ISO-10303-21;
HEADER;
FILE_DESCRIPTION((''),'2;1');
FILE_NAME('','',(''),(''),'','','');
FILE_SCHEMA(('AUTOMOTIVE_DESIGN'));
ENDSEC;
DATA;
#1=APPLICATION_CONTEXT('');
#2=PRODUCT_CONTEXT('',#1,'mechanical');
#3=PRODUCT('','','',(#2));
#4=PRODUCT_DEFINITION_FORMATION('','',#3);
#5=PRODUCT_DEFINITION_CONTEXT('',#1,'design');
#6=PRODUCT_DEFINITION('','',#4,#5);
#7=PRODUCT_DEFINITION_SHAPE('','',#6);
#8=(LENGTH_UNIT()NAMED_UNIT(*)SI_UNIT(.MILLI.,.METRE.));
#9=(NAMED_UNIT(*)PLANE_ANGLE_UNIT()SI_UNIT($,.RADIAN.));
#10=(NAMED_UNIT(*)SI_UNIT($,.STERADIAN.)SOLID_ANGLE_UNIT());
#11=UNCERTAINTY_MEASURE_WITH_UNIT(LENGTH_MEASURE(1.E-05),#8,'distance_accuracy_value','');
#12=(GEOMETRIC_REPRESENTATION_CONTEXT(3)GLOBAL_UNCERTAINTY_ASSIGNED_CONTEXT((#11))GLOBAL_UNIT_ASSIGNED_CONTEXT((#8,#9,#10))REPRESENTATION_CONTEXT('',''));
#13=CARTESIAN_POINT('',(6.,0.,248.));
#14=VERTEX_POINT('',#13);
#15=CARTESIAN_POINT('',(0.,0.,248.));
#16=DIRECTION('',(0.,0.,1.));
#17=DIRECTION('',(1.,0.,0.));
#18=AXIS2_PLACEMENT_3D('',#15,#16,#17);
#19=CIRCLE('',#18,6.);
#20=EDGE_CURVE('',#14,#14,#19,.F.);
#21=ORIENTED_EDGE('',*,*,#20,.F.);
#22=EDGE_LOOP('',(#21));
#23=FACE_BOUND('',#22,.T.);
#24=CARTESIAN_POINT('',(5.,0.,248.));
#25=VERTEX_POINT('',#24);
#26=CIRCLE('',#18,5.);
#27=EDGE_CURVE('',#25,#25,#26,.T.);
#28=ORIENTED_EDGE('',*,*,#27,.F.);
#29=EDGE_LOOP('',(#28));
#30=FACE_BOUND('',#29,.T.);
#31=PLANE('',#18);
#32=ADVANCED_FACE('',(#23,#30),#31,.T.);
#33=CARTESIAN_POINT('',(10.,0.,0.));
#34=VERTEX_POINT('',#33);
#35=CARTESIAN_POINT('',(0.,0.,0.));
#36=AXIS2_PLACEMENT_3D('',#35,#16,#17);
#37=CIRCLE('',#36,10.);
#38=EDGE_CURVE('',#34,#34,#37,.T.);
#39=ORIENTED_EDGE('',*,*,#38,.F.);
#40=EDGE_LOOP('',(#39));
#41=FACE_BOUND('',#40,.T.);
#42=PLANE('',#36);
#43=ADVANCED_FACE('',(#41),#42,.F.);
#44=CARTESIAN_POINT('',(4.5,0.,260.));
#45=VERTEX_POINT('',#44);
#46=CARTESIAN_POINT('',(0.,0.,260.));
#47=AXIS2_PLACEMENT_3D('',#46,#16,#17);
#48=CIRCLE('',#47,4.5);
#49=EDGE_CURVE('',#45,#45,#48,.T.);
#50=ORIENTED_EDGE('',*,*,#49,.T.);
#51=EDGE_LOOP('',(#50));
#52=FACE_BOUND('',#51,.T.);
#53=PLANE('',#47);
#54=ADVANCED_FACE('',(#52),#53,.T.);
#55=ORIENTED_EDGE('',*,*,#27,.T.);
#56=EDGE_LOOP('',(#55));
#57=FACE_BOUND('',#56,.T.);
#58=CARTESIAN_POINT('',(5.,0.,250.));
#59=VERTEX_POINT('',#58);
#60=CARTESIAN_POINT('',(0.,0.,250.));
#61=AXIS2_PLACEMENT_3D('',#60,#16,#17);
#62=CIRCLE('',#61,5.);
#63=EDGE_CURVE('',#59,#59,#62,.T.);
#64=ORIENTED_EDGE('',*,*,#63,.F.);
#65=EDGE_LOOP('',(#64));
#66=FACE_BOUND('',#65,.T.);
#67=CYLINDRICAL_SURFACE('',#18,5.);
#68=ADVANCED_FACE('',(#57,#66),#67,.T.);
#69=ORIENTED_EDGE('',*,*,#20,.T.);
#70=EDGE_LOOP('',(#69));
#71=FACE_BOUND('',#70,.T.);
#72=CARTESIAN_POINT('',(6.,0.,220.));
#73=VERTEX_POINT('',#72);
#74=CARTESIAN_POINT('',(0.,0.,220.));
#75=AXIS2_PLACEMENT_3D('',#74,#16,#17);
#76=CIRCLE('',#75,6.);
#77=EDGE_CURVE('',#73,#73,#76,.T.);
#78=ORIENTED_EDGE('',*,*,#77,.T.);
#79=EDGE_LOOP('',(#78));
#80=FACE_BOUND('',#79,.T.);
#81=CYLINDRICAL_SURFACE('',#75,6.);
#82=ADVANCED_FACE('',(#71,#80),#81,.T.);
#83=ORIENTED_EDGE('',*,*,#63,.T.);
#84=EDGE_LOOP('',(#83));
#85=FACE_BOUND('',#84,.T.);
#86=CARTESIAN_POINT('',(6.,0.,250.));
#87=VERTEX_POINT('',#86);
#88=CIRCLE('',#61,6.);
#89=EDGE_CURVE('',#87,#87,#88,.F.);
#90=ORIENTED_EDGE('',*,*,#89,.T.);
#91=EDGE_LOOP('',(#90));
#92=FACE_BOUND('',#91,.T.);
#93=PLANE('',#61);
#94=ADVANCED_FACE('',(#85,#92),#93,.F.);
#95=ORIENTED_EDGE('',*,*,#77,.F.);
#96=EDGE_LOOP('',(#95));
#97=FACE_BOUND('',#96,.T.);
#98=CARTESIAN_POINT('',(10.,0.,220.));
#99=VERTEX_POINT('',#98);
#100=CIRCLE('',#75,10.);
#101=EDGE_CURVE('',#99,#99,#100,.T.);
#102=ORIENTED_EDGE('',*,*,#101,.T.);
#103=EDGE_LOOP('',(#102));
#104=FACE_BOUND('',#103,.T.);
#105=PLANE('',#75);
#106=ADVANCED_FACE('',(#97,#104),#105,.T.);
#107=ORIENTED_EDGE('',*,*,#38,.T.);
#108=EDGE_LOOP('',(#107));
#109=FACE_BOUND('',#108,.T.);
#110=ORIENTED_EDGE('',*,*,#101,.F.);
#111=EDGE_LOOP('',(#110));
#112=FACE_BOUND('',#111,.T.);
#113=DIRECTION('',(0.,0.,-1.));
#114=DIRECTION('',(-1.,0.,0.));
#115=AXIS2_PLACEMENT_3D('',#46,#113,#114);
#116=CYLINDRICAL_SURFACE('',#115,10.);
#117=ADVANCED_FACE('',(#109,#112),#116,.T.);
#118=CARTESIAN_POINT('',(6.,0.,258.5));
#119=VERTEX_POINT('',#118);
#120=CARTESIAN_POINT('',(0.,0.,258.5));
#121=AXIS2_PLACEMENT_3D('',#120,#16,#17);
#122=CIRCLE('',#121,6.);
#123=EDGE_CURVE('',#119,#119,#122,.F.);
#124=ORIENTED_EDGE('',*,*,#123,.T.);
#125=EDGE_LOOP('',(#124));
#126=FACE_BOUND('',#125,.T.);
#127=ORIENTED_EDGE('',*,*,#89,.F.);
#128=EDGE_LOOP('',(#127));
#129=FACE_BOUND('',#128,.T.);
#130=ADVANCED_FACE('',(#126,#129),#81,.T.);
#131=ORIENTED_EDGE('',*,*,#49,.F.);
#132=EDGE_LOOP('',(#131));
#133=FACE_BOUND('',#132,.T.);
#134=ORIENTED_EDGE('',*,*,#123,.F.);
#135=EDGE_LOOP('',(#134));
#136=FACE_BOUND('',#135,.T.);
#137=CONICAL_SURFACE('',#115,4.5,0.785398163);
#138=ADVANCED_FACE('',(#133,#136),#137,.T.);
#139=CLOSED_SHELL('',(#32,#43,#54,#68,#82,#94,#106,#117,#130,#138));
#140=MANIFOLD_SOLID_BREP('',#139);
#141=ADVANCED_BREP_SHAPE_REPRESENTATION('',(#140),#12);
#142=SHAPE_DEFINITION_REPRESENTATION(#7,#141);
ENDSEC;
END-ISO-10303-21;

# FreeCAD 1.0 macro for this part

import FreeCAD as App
import Part
import Sketcher

V = App.Vector
Q = App.Units.Quantity


def edges_at(feature, points):
    """Names of the edges that pass closest to the given points."""
    edges = feature.Shape.Edges
    near = lambda p: min(range(len(edges)), key=lambda i: edges[i].distToShape(Part.Vertex(*p))[0])
    return sorted({f"Edge{near(p) + 1}" for p in points})


def add_polygon(sketch, points):
    """Adds a closed chain of lines whose ends are joined by coincident constraints."""
    first, n = sketch.GeometryCount, len(points)
    for a, b in zip(points, points[1:] + points[:1]):
        sketch.addGeometry(Part.LineSegment(App.Vector(*a, 0), App.Vector(*b, 0)), False)
    for i in range(n):
        sketch.addConstraint(Sketcher.Constraint("Coincident", first + i, 2, first + (i + 1) % n, 1))

doc = App.newDocument("Part")
body = doc.addObject("PartDesign::Body", "Body")

# Sketch on XY plane
sketch1 = body.newObject("Sketcher::SketchObject", "Sketch")
sketch1.AttachmentSupport = (doc.getObject("XY_Plane"), [""])
sketch1.MapMode = "FlatFace"
sketch1.addGeometry(Part.Circle(V(0, 0, 0), V(0, 0, 1), 10), False)
sketch1.addConstraint([
    Sketcher.Constraint("Coincident", 0, 3, -1, 1),
    Sketcher.Constraint("Diameter", 0, Q("20 mm")),
])
pad1 = body.newObject("PartDesign::Pad", "Pad")
pad1.Profile = sketch1
pad1.Length = 260

# Sketch on XY plane
sketch2 = body.newObject("Sketcher::SketchObject", "Sketch001")
sketch2.AttachmentSupport = (doc.getObject("XY_Plane"), [""])
sketch2.MapMode = "FlatFace"
sketch2.AttachmentOffset = App.Placement(V(0, 0, 260), App.Rotation())
add_polygon(sketch2, [(-37, 37), (-37, -37), (37, -37), (37, 37)])  # lines 0-3
sketch2.addGeometry(Part.Circle(V(0, 0, 0), V(0, 0, 1), 6), False)  # 4
sketch2.addConstraint([
    Sketcher.Constraint("Vertical", 0),
    Sketcher.Constraint("Horizontal", 1),
    Sketcher.Constraint("Vertical", 2),
    Sketcher.Constraint("Horizontal", 3),
    Sketcher.Constraint("Coincident", 4, 3, -1, 1),
    Sketcher.Constraint("Symmetric", 0, 2, 2, 2, -1, 1),
    Sketcher.Constraint("Equal", 3, 0),
    Sketcher.Constraint("Diameter", 4, Q("12 mm")),
    Sketcher.Constraint("DistanceX", 1, 1, 1, 2, Q("74.306 mm")),
])
pocket1 = body.newObject("PartDesign::Pocket", "Pocket")
pocket1.Profile = sketch2
pocket1.Length = 40

# Sketch on XY plane
sketch3 = body.newObject("Sketcher::SketchObject", "Sketch002")
sketch3.AttachmentSupport = (doc.getObject("XY_Plane"), [""])
sketch3.MapMode = "FlatFace"
sketch3.AttachmentOffset = App.Placement(V(0, 0, 250), App.Rotation())
add_polygon(sketch3, [(-37, 37), (-37, -37), (37, -37), (37, 37)])  # lines 0-3
sketch3.addGeometry(Part.Circle(V(0, 0, 0), V(0, 0, 1), 5), False)  # 4
sketch3.addConstraint([
    Sketcher.Constraint("Vertical", 0),
    Sketcher.Constraint("Horizontal", 1),
    Sketcher.Constraint("Vertical", 2),
    Sketcher.Constraint("Horizontal", 3),
    Sketcher.Constraint("Coincident", 4, 3, -1, 1),
    Sketcher.Constraint("Symmetric", 0, 2, 2, 2, -1, 1),
    Sketcher.Constraint("Equal", 3, 0),
    Sketcher.Constraint("Diameter", 4, Q("10 mm")),
    Sketcher.Constraint("DistanceX", 1, 1, 1, 2, Q("74.306 mm")),
])
pocket2 = body.newObject("PartDesign::Pocket", "Pocket001")
pocket2.Profile = sketch3
pocket2.Length = 2
doc.recompute()

chamfer = body.newObject("PartDesign::Chamfer", "Chamfer")
chamfer.Base = (pocket2, edges_at(pocket2, [(-6, 0, 260)]))
chamfer.Size = 1.5

doc.recompute()
